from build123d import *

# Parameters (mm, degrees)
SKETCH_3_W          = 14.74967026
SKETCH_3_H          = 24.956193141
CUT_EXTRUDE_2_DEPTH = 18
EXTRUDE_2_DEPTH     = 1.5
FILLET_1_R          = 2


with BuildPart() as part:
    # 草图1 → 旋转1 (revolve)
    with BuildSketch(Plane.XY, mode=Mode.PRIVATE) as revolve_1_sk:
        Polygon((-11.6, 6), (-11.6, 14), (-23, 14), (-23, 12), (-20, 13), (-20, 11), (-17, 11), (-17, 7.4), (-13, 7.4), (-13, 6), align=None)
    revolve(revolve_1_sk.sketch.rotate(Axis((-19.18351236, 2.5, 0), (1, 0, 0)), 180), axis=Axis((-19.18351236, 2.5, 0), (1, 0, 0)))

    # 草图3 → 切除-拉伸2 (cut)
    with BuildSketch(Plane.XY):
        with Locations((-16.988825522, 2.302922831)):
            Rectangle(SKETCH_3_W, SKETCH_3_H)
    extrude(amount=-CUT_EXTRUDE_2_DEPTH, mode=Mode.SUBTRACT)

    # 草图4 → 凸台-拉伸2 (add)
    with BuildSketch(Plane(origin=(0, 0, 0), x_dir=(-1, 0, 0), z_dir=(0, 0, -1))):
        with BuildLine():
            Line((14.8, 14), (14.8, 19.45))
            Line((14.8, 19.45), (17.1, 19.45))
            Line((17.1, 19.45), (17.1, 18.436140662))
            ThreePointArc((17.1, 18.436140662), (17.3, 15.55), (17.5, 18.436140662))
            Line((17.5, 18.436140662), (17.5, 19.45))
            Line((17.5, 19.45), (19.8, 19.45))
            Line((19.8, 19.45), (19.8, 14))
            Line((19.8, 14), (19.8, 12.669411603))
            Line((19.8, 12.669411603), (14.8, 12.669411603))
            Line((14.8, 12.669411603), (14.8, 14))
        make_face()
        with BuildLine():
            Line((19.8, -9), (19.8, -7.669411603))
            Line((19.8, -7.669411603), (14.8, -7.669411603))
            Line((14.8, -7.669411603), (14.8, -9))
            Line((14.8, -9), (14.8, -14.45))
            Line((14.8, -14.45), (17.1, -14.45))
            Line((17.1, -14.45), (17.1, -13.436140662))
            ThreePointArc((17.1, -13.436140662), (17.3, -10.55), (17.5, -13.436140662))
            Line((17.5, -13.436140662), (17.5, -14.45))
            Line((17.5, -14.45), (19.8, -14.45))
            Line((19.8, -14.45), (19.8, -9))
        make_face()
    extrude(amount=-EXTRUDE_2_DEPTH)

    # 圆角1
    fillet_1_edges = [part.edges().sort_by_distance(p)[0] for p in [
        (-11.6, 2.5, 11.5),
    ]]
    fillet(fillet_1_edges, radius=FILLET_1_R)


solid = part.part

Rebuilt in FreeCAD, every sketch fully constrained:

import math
import FreeCAD as App
import Part
import Sketcher

V = App.Vector
Q = App.Units.Quantity


def edges_at(feature, points):
    """Names of the edges that pass closest to the given points."""
    edges = feature.Shape.Edges
    near = lambda p: min(range(len(edges)), key=lambda i: edges[i].distToShape(Part.Vertex(*p))[0])
    return sorted({f"Edge{near(p) + 1}" for p in points})

doc = App.newDocument("Part")
body = doc.addObject("PartDesign::Body", "Body")

sketch1 = body.newObject("Sketcher::SketchObject", "Sketch")
sketch1.AttachmentSupport = (doc.getObject("XY_Plane"), [""])
sketch1.MapMode = "FlatFace"
sketch1.addGeometry([
    Part.LineSegment(V(-11.6, 6, 0), V(-11.6, 14, 0)),
    Part.LineSegment(V(-11.6, 14, 0), V(-23, 14, 0)),
    Part.LineSegment(V(-23, 14, 0), V(-23, 12, 0)),
    Part.LineSegment(V(-23, 12, 0), V(-20, 13, 0)),
    Part.LineSegment(V(-20, 13, 0), V(-20, 11, 0)),
    Part.LineSegment(V(-20, 11, 0), V(-17, 11, 0)),
    Part.LineSegment(V(-17, 11, 0), V(-17, 7.4, 0)),
    Part.LineSegment(V(-17, 7.4, 0), V(-13, 7.4, 0)),
    Part.LineSegment(V(-13, 7.4, 0), V(-13, 6, 0)),
    Part.LineSegment(V(-13, 6, 0), V(-11.6, 6, 0)),
], False)
sketch1.addGeometry(Part.LineSegment(V(-23, 2.5, 0), V(-11.6, 2.5, 0)), True)
sketch1.addConstraint([
    Sketcher.Constraint("Coincident", 0, 2, 1, 1),
    Sketcher.Constraint("Coincident", 1, 2, 2, 1),
    Sketcher.Constraint("Coincident", 2, 2, 3, 1),
    Sketcher.Constraint("Coincident", 3, 2, 4, 1),
    Sketcher.Constraint("Coincident", 4, 2, 5, 1),
    Sketcher.Constraint("Coincident", 5, 2, 6, 1),
    Sketcher.Constraint("Coincident", 6, 2, 7, 1),
    Sketcher.Constraint("Coincident", 7, 2, 8, 1),
    Sketcher.Constraint("Coincident", 8, 2, 9, 1),
    Sketcher.Constraint("Coincident", 9, 2, 0, 1),
    Sketcher.Constraint("Vertical", 0),
    Sketcher.Constraint("Horizontal", 1),
    Sketcher.Constraint("Vertical", 2),
    Sketcher.Constraint("Vertical", 4),
    Sketcher.Constraint("Horizontal", 5),
    Sketcher.Constraint("Vertical", 6),
    Sketcher.Constraint("Horizontal", 7),
    Sketcher.Constraint("Vertical", 8),
    Sketcher.Constraint("Horizontal", 9),
    Sketcher.Constraint("Horizontal", 10),
    Sketcher.Constraint("Vertical", 2, 2, 10, 1),
    Sketcher.Constraint("Vertical", 9, 2, 10, 2),
    Sketcher.Constraint("Equal", 2, 4),
    Sketcher.Constraint("Equal", 9, 8),
    Sketcher.Constraint("DistanceX", 5, 1, 5, 2, Q("3 mm")),
    Sketcher.Constraint("DistanceX", 7, 1, 7, 2, Q("4 mm")),
    Sketcher.Constraint("DistanceY", 0, 1, 0, 2, Q("8 mm")),
    Sketcher.Constraint("DistanceY", 2, 2, 2, 1, Q("2 mm")),
    Sketcher.Constraint("DistanceX", 1, 2, 1, 1, Q("11.4 mm")),
    Sketcher.Constraint("DistanceX", 9, 1, 9, 2, Q("1.4 mm")),
    Sketcher.Constraint("DistanceY", 6, 2, 6, 1, Q("3.6 mm")),
    Sketcher.Constraint("DistanceY", -1, 1, 0, 2, Q("14 mm")),
    Sketcher.Constraint("DistanceX", 1, 2, -1, 1, Q("23 mm")),
    Sketcher.Constraint("DistanceY", -1, 1, 10, 1, Q("2.5 mm")),
])
revolution = body.newObject("PartDesign::Revolution", "Revolution")
revolution.Profile = sketch1
revolution.ReferenceAxis = (sketch1, ["Axis0"])
revolution.Angle = 360

sketch2 = body.newObject("Sketcher::SketchObject", "Sketch001")
sketch2.AttachmentSupport = (doc.getObject("XY_Plane"), [""])
sketch2.MapMode = "FlatFace"
sketch2.addGeometry([
    Part.LineSegment(V(-24, 15, 0), V(-24, -10, 0)),
    Part.LineSegment(V(-24, -10, 0), V(-10, -10, 0)),
    Part.LineSegment(V(-10, -10, 0), V(-10, 15, 0)),
    Part.LineSegment(V(-10, 15, 0), V(-24, 15, 0)),
], False)
sketch2.addConstraint([
    Sketcher.Constraint("Coincident", 0, 2, 1, 1),
    Sketcher.Constraint("Coincident", 1, 2, 2, 1),
    Sketcher.Constraint("Coincident", 2, 2, 3, 1),
    Sketcher.Constraint("Coincident", 3, 2, 0, 1),
    Sketcher.Constraint("Vertical", 0),
    Sketcher.Constraint("Horizontal", 1),
    Sketcher.Constraint("Vertical", 2),
    Sketcher.Constraint("Horizontal", 3),
    Sketcher.Constraint("DistanceX", 1, 1, 1, 2, Q("14.74967 mm")),
    Sketcher.Constraint("DistanceY", 0, 2, 0, 1, Q("24.956193 mm")),
    Sketcher.Constraint("DistanceX", 0, 2, -1, 1, Q("24.363661 mm")),
    Sketcher.Constraint("DistanceY", -1, 1, 2, 2, Q("14.781019 mm")),
])
pocket1 = body.newObject("PartDesign::Pocket", "Pocket")
pocket1.Profile = sketch2
pocket1.Length = 18

sketch3 = body.newObject("Sketcher::SketchObject", "Sketch002")
sketch3.AttachmentSupport = (doc.getObject("XY_Plane"), [""])
sketch3.MapMode = "FlatFace"
sketch3.addGeometry([
    Part.LineSegment(V(-17.1, 19.45, 0), V(-14.8, 19.45, 0)),
    Part.LineSegment(V(-14.8, 19.45, 0), V(-14.8, 12.67, 0)),
    Part.LineSegment(V(-14.8, 12.67, 0), V(-19.8, 12.67, 0)),
    Part.LineSegment(V(-19.8, 12.67, 0), V(-19.8, 19.45, 0)),
    Part.LineSegment(V(-19.8, 19.45, 0), V(-17.5, 19.45, 0)),
    Part.LineSegment(V(-17.5, 19.45, 0), V(-17.5, 18.44, 0)),
    Part.ArcOfCircle(Part.Circle(V(-17.3, 17, 0), V(0, 0, 1), 1.45), math.radians(98), math.radians(442)),
    Part.LineSegment(V(-17.1, 18.44, 0), V(-17.1, 19.45, 0)),
    Part.LineSegment(V(-19.8, -7.67, 0), V(-14.8, -7.67, 0)),
    Part.LineSegment(V(-14.8, -7.67, 0), V(-14.8, -14.45, 0)),
    Part.LineSegment(V(-14.8, -14.45, 0), V(-17.1, -14.45, 0)),
    Part.LineSegment(V(-17.1, -14.45, 0), V(-17.1, -13.44, 0)),
    Part.ArcOfCircle(Part.Circle(V(-17.3, -12, 0), V(0, 0, 1), 1.45), math.radians(-82), math.radians(262)),
    Part.LineSegment(V(-17.5, -13.44, 0), V(-17.5, -14.45, 0)),
    Part.LineSegment(V(-17.5, -14.45, 0), V(-19.8, -14.45, 0)),
    Part.LineSegment(V(-19.8, -14.45, 0), V(-19.8, -7.67, 0)),
], False)
sketch3.addConstraint([
    Sketcher.Constraint("Coincident", 0, 2, 1, 1),
    Sketcher.Constraint("Coincident", 1, 2, 2, 1),
    Sketcher.Constraint("Coincident", 2, 2, 3, 1),
    Sketcher.Constraint("Coincident", 3, 2, 4, 1),
    Sketcher.Constraint("Coincident", 4, 2, 5, 1),
    Sketcher.Constraint("Coincident", 5, 2, 6, 1),
    Sketcher.Constraint("Coincident", 6, 2, 7, 1),
    Sketcher.Constraint("Coincident", 7, 2, 0, 1),
    Sketcher.Constraint("Coincident", 8, 2, 9, 1),
    Sketcher.Constraint("Coincident", 9, 2, 10, 1),
    Sketcher.Constraint("Coincident", 10, 2, 11, 1),
    Sketcher.Constraint("Coincident", 11, 2, 12, 1),
    Sketcher.Constraint("Coincident", 12, 2, 13, 1),
    Sketcher.Constraint("Coincident", 13, 2, 14, 1),
    Sketcher.Constraint("Coincident", 14, 2, 15, 1),
    Sketcher.Constraint("Coincident", 15, 2, 8, 1),
    Sketcher.Constraint("Horizontal", 0),
    Sketcher.Constraint("Vertical", 1),
    Sketcher.Constraint("Horizontal", 2),
    Sketcher.Constraint("Vertical", 3),
    Sketcher.Constraint("Horizontal", 4),
    Sketcher.Constraint("Vertical", 5),
    Sketcher.Constraint("Vertical", 7),
    Sketcher.Constraint("Horizontal", 8),
    Sketcher.Constraint("Vertical", 9),
    Sketcher.Constraint("Horizontal", 10),
    Sketcher.Constraint("Vertical", 11),
    Sketcher.Constraint("Vertical", 13),
    Sketcher.Constraint("Horizontal", 14),
    Sketcher.Constraint("Vertical", 15),
    Sketcher.Constraint("Equal", 6, 12),
    Sketcher.Constraint("Horizontal", 0, 2, 3, 2),
    Sketcher.Constraint("Horizontal", 5, 2, 6, 2),
    Sketcher.Constraint("Horizontal", 11, 2, 12, 2),
    Sketcher.Constraint("Horizontal", 10, 2, 13, 2),
    Sketcher.Constraint("Vertical", 6, 3, 12, 3),
    Sketcher.Constraint("Vertical", 1, 2, 8, 2),
    Sketcher.Constraint("Vertical", 7, 2, 10, 2),
    Sketcher.Constraint("Vertical", 3, 2, 14, 2),
    Sketcher.Constraint("Equal", 0, 4),
    Sketcher.Constraint("Equal", 3, 9),
    Sketcher.Constraint("Equal", 7, 11),
    Sketcher.Constraint("DistanceX", 2, 2, 2, 1, Q("5 mm")),
    Sketcher.Constraint("Radius", 6, Q("1.45 mm")),
    Sketcher.Constraint("DistanceX", 0, 1, 0, 2, Q("2.3 mm")),
    Sketcher.Constraint("DistanceY", -1, 1, 6, 3, Q("17 mm")),
    Sketcher.Constraint("DistanceY", 12, 3, -1, 1, Q("12 mm")),
    Sketcher.Constraint("DistanceX", 6, 3, -1, 1, Q("17.3 mm")),
    Sketcher.Constraint("DistanceY", -1, 1, 0, 2, Q("19.45 mm")),
    Sketcher.Constraint("DistanceY", 1, 2, 1, 1, Q("6.780588 mm")),
])
pad1 = body.newObject("PartDesign::Pad", "Pad")
pad1.Profile = sketch3
pad1.Length = 1.5
doc.recompute()

fillet = body.newObject("PartDesign::Fillet", "Fillet")
fillet.Base = (pad1, edges_at(pad1, [(-11.6, 2.5, 11.5)]))
fillet.Radius = 2

doc.recompute()
